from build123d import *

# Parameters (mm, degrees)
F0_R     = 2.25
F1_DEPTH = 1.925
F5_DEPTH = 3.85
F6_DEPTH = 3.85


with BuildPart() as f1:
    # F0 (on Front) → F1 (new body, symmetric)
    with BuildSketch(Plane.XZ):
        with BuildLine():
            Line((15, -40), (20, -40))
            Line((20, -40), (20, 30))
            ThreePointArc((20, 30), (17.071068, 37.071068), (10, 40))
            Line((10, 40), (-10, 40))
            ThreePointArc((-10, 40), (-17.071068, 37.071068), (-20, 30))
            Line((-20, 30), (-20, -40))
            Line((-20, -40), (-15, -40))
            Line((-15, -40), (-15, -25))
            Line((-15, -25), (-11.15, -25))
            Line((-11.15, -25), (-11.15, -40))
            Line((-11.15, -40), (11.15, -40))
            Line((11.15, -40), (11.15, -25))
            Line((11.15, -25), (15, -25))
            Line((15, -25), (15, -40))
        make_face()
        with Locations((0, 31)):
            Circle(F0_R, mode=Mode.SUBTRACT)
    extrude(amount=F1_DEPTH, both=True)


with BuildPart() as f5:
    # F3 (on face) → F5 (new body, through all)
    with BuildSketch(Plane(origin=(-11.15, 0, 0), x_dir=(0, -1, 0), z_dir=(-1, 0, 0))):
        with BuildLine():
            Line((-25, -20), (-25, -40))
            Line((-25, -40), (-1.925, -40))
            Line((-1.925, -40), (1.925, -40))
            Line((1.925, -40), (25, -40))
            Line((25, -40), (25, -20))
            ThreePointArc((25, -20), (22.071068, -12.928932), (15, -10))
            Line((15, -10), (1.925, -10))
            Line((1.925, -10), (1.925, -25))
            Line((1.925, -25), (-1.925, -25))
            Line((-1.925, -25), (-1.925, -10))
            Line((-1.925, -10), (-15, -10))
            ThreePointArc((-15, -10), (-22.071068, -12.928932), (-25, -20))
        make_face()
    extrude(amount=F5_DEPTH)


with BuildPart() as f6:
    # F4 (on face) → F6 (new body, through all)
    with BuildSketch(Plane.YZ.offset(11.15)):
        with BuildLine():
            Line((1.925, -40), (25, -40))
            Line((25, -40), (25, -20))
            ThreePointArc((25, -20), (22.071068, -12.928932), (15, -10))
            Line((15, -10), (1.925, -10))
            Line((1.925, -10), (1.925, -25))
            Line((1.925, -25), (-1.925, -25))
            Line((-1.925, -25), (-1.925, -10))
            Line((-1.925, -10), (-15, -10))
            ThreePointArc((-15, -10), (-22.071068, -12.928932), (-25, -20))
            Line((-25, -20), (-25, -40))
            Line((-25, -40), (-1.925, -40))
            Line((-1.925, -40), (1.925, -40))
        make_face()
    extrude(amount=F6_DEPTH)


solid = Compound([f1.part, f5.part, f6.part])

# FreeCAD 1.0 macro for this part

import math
import FreeCAD as App
import Part
import Sketcher
from FreeCAD import Vector
Q = App.Units.Quantity

doc = App.newDocument("Part")
body = doc.addObject("PartDesign::Body", "Body")

# Sketch on XZ plane
sketch1 = body.newObject("Sketcher::SketchObject", "Sketch")
sketch1.AttachmentSupport = (doc.getObject("XZ_Plane"), [""])
sketch1.MapMode = "FlatFace"
sketch1.addGeometry(Part.LineSegment(Vector(15, -40, 0), Vector(20, -40, 0)), False)
sketch1.addGeometry(Part.LineSegment(Vector(20, -40, 0), Vector(20, 30, 0)), False)
sketch1.addGeometry(Part.ArcOfCircle(Part.Circle(Vector(10, 30, 0), Vector(0, 0, 1), 10), math.radians(0), math.radians(90)), False)
sketch1.addGeometry(Part.LineSegment(Vector(10, 40, 0), Vector(-10, 40, 0)), False)
sketch1.addGeometry(Part.ArcOfCircle(Part.Circle(Vector(-10, 30, 0), Vector(0, 0, 1), 10), math.radians(90), math.radians(180)), False)
sketch1.addGeometry(Part.LineSegment(Vector(-20, 30, 0), Vector(-20, -40, 0)), False)
sketch1.addGeometry(Part.LineSegment(Vector(-20, -40, 0), Vector(-15, -40, 0)), False)
sketch1.addGeometry(Part.LineSegment(Vector(-15, -40, 0), Vector(-15, -25, 0)), False)
sketch1.addGeometry(Part.LineSegment(Vector(-15, -25, 0), Vector(-11.2, -25, 0)), False)
sketch1.addGeometry(Part.LineSegment(Vector(-11.2, -25, 0), Vector(-11.2, -40, 0)), False)
sketch1.addGeometry(Part.LineSegment(Vector(-11.2, -40, 0), Vector(11.2, -40, 0)), False)
sketch1.addGeometry(Part.LineSegment(Vector(11.2, -40, 0), Vector(11.2, -25, 0)), False)
sketch1.addGeometry(Part.LineSegment(Vector(11.2, -25, 0), Vector(15, -25, 0)), False)
sketch1.addGeometry(Part.LineSegment(Vector(15, -25, 0), Vector(15, -40, 0)), False)
sketch1.addGeometry(Part.Circle(Vector(0, 31, 0), Vector(0, 0, 1), 2.2), False)
sketch1.addConstraint(Sketcher.Constraint("Coincident", 0, 2, 1, 1))
sketch1.addConstraint(Sketcher.Constraint("Tangent", 1, 2, 2, 1))
sketch1.addConstraint(Sketcher.Constraint("Tangent", 2, 2, 3, 1))
sketch1.addConstraint(Sketcher.Constraint("Tangent", 3, 2, 4, 1))
sketch1.addConstraint(Sketcher.Constraint("Tangent", 4, 2, 5, 1))
sketch1.addConstraint(Sketcher.Constraint("Coincident", 5, 2, 6, 1))
sketch1.addConstraint(Sketcher.Constraint("Coincident", 6, 2, 7, 1))
sketch1.addConstraint(Sketcher.Constraint("Coincident", 7, 2, 8, 1))
sketch1.addConstraint(Sketcher.Constraint("Coincident", 8, 2, 9, 1))
sketch1.addConstraint(Sketcher.Constraint("Coincident", 9, 2, 10, 1))
sketch1.addConstraint(Sketcher.Constraint("Coincident", 10, 2, 11, 1))
sketch1.addConstraint(Sketcher.Constraint("Coincident", 11, 2, 12, 1))
sketch1.addConstraint(Sketcher.Constraint("Coincident", 12, 2, 13, 1))
sketch1.addConstraint(Sketcher.Constraint("Coincident", 13, 2, 0, 1))
sketch1.addConstraint(Sketcher.Constraint("Horizontal", 0))
sketch1.addConstraint(Sketcher.Constraint("Vertical", 1))
sketch1.addConstraint(Sketcher.Constraint("Horizontal", 3))
sketch1.addConstraint(Sketcher.Constraint("Vertical", 5))
sketch1.addConstraint(Sketcher.Constraint("Horizontal", 6))
sketch1.addConstraint(Sketcher.Constraint("Vertical", 7))
sketch1.addConstraint(Sketcher.Constraint("Horizontal", 8))
sketch1.addConstraint(Sketcher.Constraint("Vertical", 9))
sketch1.addConstraint(Sketcher.Constraint("Horizontal", 10))
sketch1.addConstraint(Sketcher.Constraint("Vertical", 11))
sketch1.addConstraint(Sketcher.Constraint("Horizontal", 12))
sketch1.addConstraint(Sketcher.Constraint("Vertical", 13))
sketch1.addConstraint(Sketcher.Constraint("Equal", 2, 4))
sketch1.addConstraint(Sketcher.Constraint("Symmetric", 0, 2, 5, 2, -2))
sketch1.addConstraint(Sketcher.Constraint("Symmetric", 8, 2, 11, 2, -2))
sketch1.addConstraint(Sketcher.Constraint("PointOnObject", 14, 3, -2))
sketch1.addConstraint(Sketcher.Constraint("Horizontal", 6, 2, 9, 2))
sketch1.addConstraint(Sketcher.Constraint("Equal", 0, 6))
sketch1.addConstraint(Sketcher.Constraint("Radius", 2, Q("9.999999 mm")))
sketch1.addConstraint(Sketcher.Constraint("Diameter", 14, Q("4.5 mm")))
sketch1.addConstraint(Sketcher.Constraint("DistanceX", 0, 1, 0, 2, Q("5 mm")))
sketch1.addConstraint(Sketcher.Constraint("DistanceX", 3, 2, 3, 1, Q("20 mm")))
sketch1.addConstraint(Sketcher.Constraint("DistanceY", 1, 1, 1, 2, Q("70 mm")))
sketch1.addConstraint(Sketcher.Constraint("DistanceY", 7, 1, 7, 2, Q("15 mm")))
sketch1.addConstraint(Sketcher.Constraint("DistanceX", 10, 1, 10, 2, Q("22.3 mm")))
sketch1.addConstraint(Sketcher.Constraint("DistanceY", -1, 1, 2, 3, Q("30.000001 mm")))
sketch1.addConstraint(Sketcher.Constraint("DistanceY", -1, 1, 14, 3, Q("31 mm")))
pad1 = body.newObject("PartDesign::Pad", "Pad")
pad1.Profile = sketch1
pad1.Length = 3.85
pad1.Midplane = True
body2 = doc.addObject("PartDesign::Body", "Body001")

# Sketch on YZ plane
sketch2 = body2.newObject("Sketcher::SketchObject", "Sketch001")
sketch2.AttachmentSupport = (doc.getObject("YZ_Plane001"), [""])
sketch2.MapMode = "FlatFace"
sketch2.AttachmentOffset = App.Placement(Vector(0, 0, -11.15), App.Rotation())
sketch2.addGeometry(Part.LineSegment(Vector(25, -20, 0), Vector(25, -40, 0)), False)
sketch2.addGeometry(Part.LineSegment(Vector(25, -40, 0), Vector(-25, -40, 0)), False)
sketch2.addGeometry(Part.LineSegment(Vector(-25, -40, 0), Vector(-25, -20, 0)), False)
sketch2.addGeometry(Part.ArcOfCircle(Part.Circle(Vector(-15, -20, 0), Vector(0, 0, 1), 10), math.radians(90), math.radians(180)), False)
sketch2.addGeometry(Part.LineSegment(Vector(-15, -10, 0), Vector(-1.9, -10, 0)), False)
sketch2.addGeometry(Part.LineSegment(Vector(-1.9, -10, 0), Vector(-1.9, -25, 0)), False)
sketch2.addGeometry(Part.LineSegment(Vector(-1.9, -25, 0), Vector(1.9, -25, 0)), False)
sketch2.addGeometry(Part.LineSegment(Vector(1.9, -25, 0), Vector(1.9, -10, 0)), False)
sketch2.addGeometry(Part.LineSegment(Vector(1.9, -10, 0), Vector(15, -10, 0)), False)
sketch2.addGeometry(Part.ArcOfCircle(Part.Circle(Vector(15, -20, 0), Vector(0, 0, 1), 10), math.radians(0), math.radians(90)), False)
sketch2.addConstraint(Sketcher.Constraint("Coincident", 0, 2, 1, 1))
sketch2.addConstraint(Sketcher.Constraint("Coincident", 1, 2, 2, 1))
sketch2.addConstraint(Sketcher.Constraint("Tangent", 2, 2, 3, 2))
sketch2.addConstraint(Sketcher.Constraint("Tangent", 3, 1, 4, 1))
sketch2.addConstraint(Sketcher.Constraint("Coincident", 4, 2, 5, 1))
sketch2.addConstraint(Sketcher.Constraint("Coincident", 5, 2, 6, 1))
sketch2.addConstraint(Sketcher.Constraint("Coincident", 6, 2, 7, 1))
sketch2.addConstraint(Sketcher.Constraint("Coincident", 7, 2, 8, 1))
sketch2.addConstraint(Sketcher.Constraint("Tangent", 8, 2, 9, 2))
sketch2.addConstraint(Sketcher.Constraint("Tangent", 9, 1, 0, 1))
sketch2.addConstraint(Sketcher.Constraint("Vertical", 0))
sketch2.addConstraint(Sketcher.Constraint("Horizontal", 1))
sketch2.addConstraint(Sketcher.Constraint("Vertical", 2))
sketch2.addConstraint(Sketcher.Constraint("Horizontal", 4))
sketch2.addConstraint(Sketcher.Constraint("Vertical", 5))
sketch2.addConstraint(Sketcher.Constraint("Horizontal", 6))
sketch2.addConstraint(Sketcher.Constraint("Vertical", 7))
sketch2.addConstraint(Sketcher.Constraint("Horizontal", 8))
sketch2.addConstraint(Sketcher.Constraint("Equal", 3, 9))
sketch2.addConstraint(Sketcher.Constraint("Symmetric", 3, 3, 9, 3, -2))
sketch2.addConstraint(Sketcher.Constraint("Equal", 4, 8))
sketch2.addConstraint(Sketcher.Constraint("Radius", 3, Q("9.999999 mm")))
sketch2.addConstraint(Sketcher.Constraint("DistanceX", 1, 2, 1, 1, Q("50 mm")))
sketch2.addConstraint(Sketcher.Constraint("DistanceY", 0, 2, 0, 1, Q("20 mm")))
sketch2.addConstraint(Sketcher.Constraint("DistanceY", 5, 2, 5, 1, Q("15 mm")))
sketch2.addConstraint(Sketcher.Constraint("DistanceY", 3, 3, -1, 1, Q("19.999999 mm")))
sketch2.addConstraint(Sketcher.Constraint("DistanceX", 6, 1, 6, 2, Q("3.85 mm")))
pad2 = body2.newObject("PartDesign::Pad", "Pad001")
pad2.Profile = sketch2
pad2.Length = 3.85
pad2.Reversed = True
body3 = doc.addObject("PartDesign::Body", "Body002")

# Sketch on YZ plane
sketch3 = body3.newObject("Sketcher::SketchObject", "Sketch002")
sketch3.AttachmentSupport = (doc.getObject("YZ_Plane002"), [""])
sketch3.MapMode = "FlatFace"
sketch3.AttachmentOffset = App.Placement(Vector(0, 0, 11.15), App.Rotation())
sketch3.addGeometry(Part.LineSegment(Vector(25, -40, 0), Vector(25, -20, 0)), False)
sketch3.addGeometry(Part.ArcOfCircle(Part.Circle(Vector(15, -20, 0), Vector(0, 0, 1), 10), math.radians(0), math.radians(90)), False)
sketch3.addGeometry(Part.LineSegment(Vector(15, -10, 0), Vector(1.9, -10, 0)), False)
sketch3.addGeometry(Part.LineSegment(Vector(1.9, -10, 0), Vector(1.9, -25, 0)), False)
sketch3.addGeometry(Part.LineSegment(Vector(1.9, -25, 0), Vector(-1.9, -25, 0)), False)
sketch3.addGeometry(Part.LineSegment(Vector(-1.9, -25, 0), Vector(-1.9, -10, 0)), False)
sketch3.addGeometry(Part.LineSegment(Vector(-1.9, -10, 0), Vector(-15, -10, 0)), False)
sketch3.addGeometry(Part.ArcOfCircle(Part.Circle(Vector(-15, -20, 0), Vector(0, 0, 1), 10), math.radians(90), math.radians(180)), False)
sketch3.addGeometry(Part.LineSegment(Vector(-25, -20, 0), Vector(-25, -40, 0)), False)
sketch3.addGeometry(Part.LineSegment(Vector(-25, -40, 0), Vector(25, -40, 0)), False)
sketch3.addConstraint(Sketcher.Constraint("Tangent", 0, 2, 1, 1))
sketch3.addConstraint(Sketcher.Constraint("Tangent", 1, 2, 2, 1))
sketch3.addConstraint(Sketcher.Constraint("Coincident", 2, 2, 3, 1))
sketch3.addConstraint(Sketcher.Constraint("Coincident", 3, 2, 4, 1))
sketch3.addConstraint(Sketcher.Constraint("Coincident", 4, 2, 5, 1))
sketch3.addConstraint(Sketcher.Constraint("Coincident", 5, 2, 6, 1))
sketch3.addConstraint(Sketcher.Constraint("Tangent", 6, 2, 7, 1))
sketch3.addConstraint(Sketcher.Constraint("Tangent", 7, 2, 8, 1))
sketch3.addConstraint(Sketcher.Constraint("Coincident", 8, 2, 9, 1))
sketch3.addConstraint(Sketcher.Constraint("Coincident", 9, 2, 0, 1))
sketch3.addConstraint(Sketcher.Constraint("Vertical", 0))
sketch3.addConstraint(Sketcher.Constraint("Horizontal", 2))
sketch3.addConstraint(Sketcher.Constraint("Vertical", 3))
sketch3.addConstraint(Sketcher.Constraint("Horizontal", 4))
sketch3.addConstraint(Sketcher.Constraint("Vertical", 5))
sketch3.addConstraint(Sketcher.Constraint("Horizontal", 6))
sketch3.addConstraint(Sketcher.Constraint("Vertical", 8))
sketch3.addConstraint(Sketcher.Constraint("Horizontal", 9))
sketch3.addConstraint(Sketcher.Constraint("Equal", 1, 7))
sketch3.addConstraint(Sketcher.Constraint("Symmetric", 1, 3, 7, 3, -2))
sketch3.addConstraint(Sketcher.Constraint("Equal", 2, 6))
sketch3.addConstraint(Sketcher.Constraint("Radius", 1, Q("9.999999 mm")))
sketch3.addConstraint(Sketcher.Constraint("DistanceX", 9, 1, 9, 2, Q("50 mm")))
sketch3.addConstraint(Sketcher.Constraint("DistanceY", 0, 1, 0, 2, Q("20 mm")))
sketch3.addConstraint(Sketcher.Constraint("DistanceY", 3, 2, 3, 1, Q("15 mm")))
sketch3.addConstraint(Sketcher.Constraint("DistanceY", 1, 3, -1, 1, Q("19.999999 mm")))
sketch3.addConstraint(Sketcher.Constraint("DistanceX", 4, 2, 4, 1, Q("3.85 mm")))
pad3 = body3.newObject("PartDesign::Pad", "Pad002")
pad3.Profile = sketch3
pad3.Length = 3.85

doc.recompute()
